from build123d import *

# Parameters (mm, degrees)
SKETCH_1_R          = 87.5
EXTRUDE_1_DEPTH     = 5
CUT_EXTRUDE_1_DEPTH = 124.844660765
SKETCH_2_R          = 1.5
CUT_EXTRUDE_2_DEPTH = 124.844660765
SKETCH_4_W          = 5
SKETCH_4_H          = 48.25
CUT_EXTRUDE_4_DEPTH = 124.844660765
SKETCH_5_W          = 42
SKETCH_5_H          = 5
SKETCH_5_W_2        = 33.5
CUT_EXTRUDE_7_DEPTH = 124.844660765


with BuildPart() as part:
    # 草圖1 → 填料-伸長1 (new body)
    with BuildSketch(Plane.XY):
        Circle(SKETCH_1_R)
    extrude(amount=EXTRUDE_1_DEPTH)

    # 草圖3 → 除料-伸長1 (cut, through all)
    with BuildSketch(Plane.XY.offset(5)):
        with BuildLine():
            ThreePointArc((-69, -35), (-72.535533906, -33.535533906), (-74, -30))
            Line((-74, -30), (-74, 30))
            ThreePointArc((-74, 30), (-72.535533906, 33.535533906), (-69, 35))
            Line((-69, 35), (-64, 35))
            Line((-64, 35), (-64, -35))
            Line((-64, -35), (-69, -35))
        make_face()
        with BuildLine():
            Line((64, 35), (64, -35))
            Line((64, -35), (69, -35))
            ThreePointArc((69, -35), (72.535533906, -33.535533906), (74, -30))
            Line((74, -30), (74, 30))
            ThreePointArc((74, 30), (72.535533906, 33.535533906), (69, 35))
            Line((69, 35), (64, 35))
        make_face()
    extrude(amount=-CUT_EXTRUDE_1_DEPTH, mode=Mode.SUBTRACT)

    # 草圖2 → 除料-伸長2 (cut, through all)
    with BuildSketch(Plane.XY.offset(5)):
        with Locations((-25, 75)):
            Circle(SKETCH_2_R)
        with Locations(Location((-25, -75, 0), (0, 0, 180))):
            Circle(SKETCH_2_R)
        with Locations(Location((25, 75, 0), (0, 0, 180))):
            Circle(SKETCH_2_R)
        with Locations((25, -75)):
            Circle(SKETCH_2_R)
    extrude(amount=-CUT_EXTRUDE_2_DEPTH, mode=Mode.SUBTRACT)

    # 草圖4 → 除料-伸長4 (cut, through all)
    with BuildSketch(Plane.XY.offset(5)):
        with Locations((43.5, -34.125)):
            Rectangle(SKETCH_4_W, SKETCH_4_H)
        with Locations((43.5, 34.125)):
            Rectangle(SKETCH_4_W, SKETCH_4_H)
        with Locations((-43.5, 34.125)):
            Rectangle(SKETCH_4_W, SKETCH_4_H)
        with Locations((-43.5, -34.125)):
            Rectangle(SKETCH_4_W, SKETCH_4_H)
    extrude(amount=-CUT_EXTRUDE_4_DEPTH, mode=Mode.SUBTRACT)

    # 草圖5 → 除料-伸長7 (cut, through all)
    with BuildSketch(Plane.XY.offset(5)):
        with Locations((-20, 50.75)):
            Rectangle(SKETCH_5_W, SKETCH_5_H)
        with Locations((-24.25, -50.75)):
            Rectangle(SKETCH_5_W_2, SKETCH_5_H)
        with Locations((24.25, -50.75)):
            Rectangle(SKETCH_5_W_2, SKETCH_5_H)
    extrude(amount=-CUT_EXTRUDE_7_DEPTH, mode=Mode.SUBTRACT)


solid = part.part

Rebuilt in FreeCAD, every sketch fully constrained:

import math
import FreeCAD as App
import Part
import Sketcher

V = App.Vector


def add_polygon(sketch, points):
    """Adds a closed chain of lines whose ends are joined by coincident constraints."""
    first, n = sketch.GeometryCount, len(points)
    for a, b in zip(points, points[1:] + points[:1]):
        sketch.addGeometry(Part.LineSegment(App.Vector(*a, 0), App.Vector(*b, 0)), False)
    for i in range(n):
        sketch.addConstraint(Sketcher.Constraint("Coincident", first + i, 2, first + (i + 1) % n, 1))

doc = App.newDocument("Part")
body = doc.addObject("PartDesign::Body", "Body")

# Sketch on XY plane
sketch1 = body.newObject("Sketcher::SketchObject", "Sketch")
sketch1.AttachmentSupport = (doc.getObject("XY_Plane"), [""])
sketch1.MapMode = "FlatFace"
sketch1.addGeometry(Part.Circle(V(0, 0, 0), V(0, 0, 1), 88), False)
sketch1.addConstraint([
    Sketcher.Constraint("Coincident", 0, 3, -1, 1),
    Sketcher.Constraint("Diameter", 0, 175.0),
])
pad1 = body.newObject("PartDesign::Pad", "Pad")
pad1.Profile = sketch1
pad1.Length = 5

# Sketch on XY plane
sketch2 = body.newObject("Sketcher::SketchObject", "Sketch001")
sketch2.AttachmentSupport = (doc.getObject("XY_Plane"), [""])
sketch2.MapMode = "FlatFace"
sketch2.AttachmentOffset = App.Placement(V(0, 0, 5), App.Rotation())
sketch2.addGeometry([
    Part.ArcOfCircle(Part.Circle(V(-69, -30, 0), V(0, 0, 1), 5), math.radians(180), math.radians(270)),  # 0
    Part.LineSegment(V(-69, -35, 0), V(-64, -35, 0)),  # 1
    Part.LineSegment(V(-64, -35, 0), V(-64, 35, 0)),  # 2
    Part.LineSegment(V(-64, 35, 0), V(-69, 35, 0)),  # 3
    Part.ArcOfCircle(Part.Circle(V(-69, 30, 0), V(0, 0, 1), 5), math.radians(90), math.radians(180)),  # 4
    Part.LineSegment(V(-74, 30, 0), V(-74, -30, 0)),  # 5
    Part.LineSegment(V(64, 35, 0), V(64, -35, 0)),  # 6
    Part.LineSegment(V(64, -35, 0), V(69, -35, 0)),  # 7
    Part.ArcOfCircle(Part.Circle(V(69, -30, 0), V(0, 0, 1), 5), math.radians(-90), math.radians(0)),  # 8
    Part.LineSegment(V(74, -30, 0), V(74, 30, 0)),  # 9
    Part.ArcOfCircle(Part.Circle(V(69, 30, 0), V(0, 0, 1), 5), math.radians(0), math.radians(90)),  # 10
    Part.LineSegment(V(69, 35, 0), V(64, 35, 0)),  # 11
], False)
sketch2.addConstraint([
    Sketcher.Constraint("Tangent", 0, 2, 1, 1),
    Sketcher.Constraint("Coincident", 1, 2, 2, 1),
    Sketcher.Constraint("Coincident", 2, 2, 3, 1),
    Sketcher.Constraint("Tangent", 3, 2, 4, 1),
    Sketcher.Constraint("Tangent", 4, 2, 5, 1),
    Sketcher.Constraint("Tangent", 5, 2, 0, 1),
    Sketcher.Constraint("Coincident", 6, 2, 7, 1),
    Sketcher.Constraint("Tangent", 7, 2, 8, 1),
    Sketcher.Constraint("Tangent", 8, 2, 9, 1),
    Sketcher.Constraint("Tangent", 9, 2, 10, 1),
    Sketcher.Constraint("Tangent", 10, 2, 11, 1),
    Sketcher.Constraint("Coincident", 11, 2, 6, 1),
    Sketcher.Constraint("Horizontal", 1),
    Sketcher.Constraint("Vertical", 2),
    Sketcher.Constraint("Horizontal", 3),
    Sketcher.Constraint("Vertical", 5),
    Sketcher.Constraint("Vertical", 6),
    Sketcher.Constraint("Horizontal", 7),
    Sketcher.Constraint("Vertical", 9),
    Sketcher.Constraint("Horizontal", 11),
    Sketcher.Constraint("Equal", 0, 4),
    Sketcher.Constraint("Equal", 4, 8),
    Sketcher.Constraint("Equal", 8, 10),
    Sketcher.Constraint("Symmetric", 4, 3, 8, 3, -1, 1),
    Sketcher.Constraint("Symmetric", 1, 2, 11, 2, -1, 1),
    Sketcher.Constraint("Horizontal", 0, 3, 8, 3),
    Sketcher.Constraint("Radius", 0, 5.0),
    Sketcher.Constraint("DistanceX", 1, 1, 1, 2, 5.0),
    Sketcher.Constraint("DistanceY", 2, 1, 2, 2, 70.0),
    Sketcher.Constraint("DistanceX", 0, 3, -1, 1, 69.0),
])
pocket1 = body.newObject("PartDesign::Pocket", "Pocket")
pocket1.Profile = sketch2
pocket1.Type = "ThroughAll"

# Sketch on XY plane
sketch3 = body.newObject("Sketcher::SketchObject", "Sketch002")
sketch3.AttachmentSupport = (doc.getObject("XY_Plane"), [""])
sketch3.MapMode = "FlatFace"
sketch3.AttachmentOffset = App.Placement(V(0, 0, 5), App.Rotation())
sketch3.addGeometry([
    Part.Circle(V(-25, 75, 0), V(0, 0, 1), 1.5),
    Part.Circle(V(-25, -75, 0), V(0, 0, 1), 1.5),
    Part.Circle(V(25, 75, 0), V(0, 0, 1), 1.5),
    Part.Circle(V(25, -75, 0), V(0, 0, 1), 1.5),
], False)
sketch3.addConstraint([
    Sketcher.Constraint("Equal", 0, 1),
    Sketcher.Constraint("Equal", 1, 2),
    Sketcher.Constraint("Equal", 2, 3),
    Sketcher.Constraint("Symmetric", 1, 3, 2, 3, -1, 1),
    Sketcher.Constraint("Symmetric", 0, 3, 3, 3, -1, 1),
    Sketcher.Constraint("Symmetric", 0, 3, 2, 3, -2),
    Sketcher.Constraint("Diameter", 0, 3.0),
    Sketcher.Constraint("DistanceX", 0, 3, -1, 1, 25.0),
    Sketcher.Constraint("DistanceY", -1, 1, 0, 3, 75.0),
])
pocket2 = body.newObject("PartDesign::Pocket", "Pocket001")
pocket2.Profile = sketch3
pocket2.Type = "ThroughAll"

# Sketch on XY plane
sketch4 = body.newObject("Sketcher::SketchObject", "Sketch003")
sketch4.AttachmentSupport = (doc.getObject("XY_Plane"), [""])
sketch4.MapMode = "FlatFace"
sketch4.AttachmentOffset = App.Placement(V(0, 0, 5), App.Rotation())
add_polygon(sketch4, [(41, -10), (41, -58), (46, -58), (46, -10)])  # lines 0-3
add_polygon(sketch4, [(41, 58), (41, 10), (46, 10), (46, 58)])  # lines 4-7
add_polygon(sketch4, [(-46, 58), (-46, 10), (-41, 10), (-41, 58)])  # lines 8-11
add_polygon(sketch4, [(-46, -10), (-46, -58), (-41, -58), (-41, -10)])  # lines 12-15
sketch4.addConstraint([
    Sketcher.Constraint("Vertical", 0),
    Sketcher.Constraint("Horizontal", 1),
    Sketcher.Constraint("Vertical", 2),
    Sketcher.Constraint("Horizontal", 3),
    Sketcher.Constraint("Vertical", 4),
    Sketcher.Constraint("Horizontal", 5),
    Sketcher.Constraint("Vertical", 6),
    Sketcher.Constraint("Horizontal", 7),
    Sketcher.Constraint("Vertical", 8),
    Sketcher.Constraint("Horizontal", 9),
    Sketcher.Constraint("Vertical", 10),
    Sketcher.Constraint("Horizontal", 11),
    Sketcher.Constraint("Vertical", 12),
    Sketcher.Constraint("Horizontal", 13),
    Sketcher.Constraint("Vertical", 14),
    Sketcher.Constraint("Horizontal", 15),
    Sketcher.Constraint("Symmetric", 2, 2, 8, 2, -1, 1),
    Sketcher.Constraint("Symmetric", 0, 2, 10, 2, -1, 1),
    Sketcher.Constraint("Symmetric", 6, 2, 12, 2, -1, 1),
    Sketcher.Constraint("Symmetric", 4, 2, 14, 2, -1, 1),
    Sketcher.Constraint("Symmetric", 5, 2, 8, 2, -2),
    Sketcher.Constraint("Symmetric", 7, 2, 10, 2, -2),
    Sketcher.Constraint("DistanceX", 1, 1, 1, 2, 5.0),
    Sketcher.Constraint("DistanceX", -1, 1, 0, 2, 41.0),
    Sketcher.Constraint("DistanceY", 2, 2, -1, 1, 10.0),
    Sketcher.Constraint("DistanceY", 0, 2, 0, 1, 48.25),
])
pocket3 = body.newObject("PartDesign::Pocket", "Pocket002")
pocket3.Profile = sketch4
pocket3.Type = "ThroughAll"

# Sketch on XY plane
sketch5 = body.newObject("Sketcher::SketchObject", "Sketch004")
sketch5.AttachmentSupport = (doc.getObject("XY_Plane"), [""])
sketch5.MapMode = "FlatFace"
sketch5.AttachmentOffset = App.Placement(V(0, 0, 5), App.Rotation())
add_polygon(sketch5, [(-41, 53), (-41, 48), (1, 48), (1, 53)])  # lines 0-3
add_polygon(sketch5, [(-41, -48), (-41, -53), (-8, -53), (-8, -48)])  # lines 4-7
add_polygon(sketch5, [(8, -48), (8, -53), (41, -53), (41, -48)])  # lines 8-11
sketch5.addConstraint([
    Sketcher.Constraint("Vertical", 0),
    Sketcher.Constraint("Horizontal", 1),
    Sketcher.Constraint("Vertical", 2),
    Sketcher.Constraint("Horizontal", 3),
    Sketcher.Constraint("Vertical", 4),
    Sketcher.Constraint("Horizontal", 5),
    Sketcher.Constraint("Vertical", 6),
    Sketcher.Constraint("Horizontal", 7),
    Sketcher.Constraint("Vertical", 8),
    Sketcher.Constraint("Horizontal", 9),
    Sketcher.Constraint("Vertical", 10),
    Sketcher.Constraint("Horizontal", 11),
    Sketcher.Constraint("Symmetric", 3, 2, 9, 2, -1, 1),
    Sketcher.Constraint("Symmetric", 5, 2, 8, 2, -2),
    Sketcher.Constraint("Symmetric", 7, 2, 10, 2, -2),
    Sketcher.Constraint("Equal", 2, 4),
    Sketcher.Constraint("DistanceX", 1, 1, 1, 2, 42.0),
    Sketcher.Constraint("DistanceY", 0, 2, 0, 1, 5.0),
    Sketcher.Constraint("DistanceX", 5, 1, 5, 2, 33.5),
    Sketcher.Constraint("DistanceX", 0, 2, -1, 1, 41.0),
    Sketcher.Constraint("DistanceY", 4, 2, 0, 2, 101.5),
])
pocket4 = body.newObject("PartDesign::Pocket", "Pocket003")
pocket4.Profile = sketch5
pocket4.Type = "ThroughAll"

doc.recompute()
